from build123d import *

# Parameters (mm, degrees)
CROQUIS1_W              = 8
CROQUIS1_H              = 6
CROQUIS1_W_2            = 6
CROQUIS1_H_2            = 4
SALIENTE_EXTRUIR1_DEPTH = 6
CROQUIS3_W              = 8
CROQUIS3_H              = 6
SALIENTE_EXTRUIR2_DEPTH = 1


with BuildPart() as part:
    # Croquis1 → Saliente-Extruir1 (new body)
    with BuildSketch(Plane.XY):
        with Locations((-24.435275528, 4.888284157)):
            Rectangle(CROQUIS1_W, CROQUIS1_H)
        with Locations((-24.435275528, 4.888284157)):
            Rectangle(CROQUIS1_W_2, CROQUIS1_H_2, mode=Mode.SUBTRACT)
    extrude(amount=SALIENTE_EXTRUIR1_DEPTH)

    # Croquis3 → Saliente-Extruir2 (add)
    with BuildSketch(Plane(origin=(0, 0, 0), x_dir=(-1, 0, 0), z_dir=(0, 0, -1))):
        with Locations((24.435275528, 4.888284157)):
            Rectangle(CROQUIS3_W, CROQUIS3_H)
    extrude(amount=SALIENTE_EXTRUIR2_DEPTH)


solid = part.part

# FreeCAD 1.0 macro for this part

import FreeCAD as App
import Part
import Sketcher
Q = App.Units.Quantity


def add_polygon(sketch, points):
    """Adds a closed chain of lines whose ends are joined by coincident constraints."""
    first, n = sketch.GeometryCount, len(points)
    for a, b in zip(points, points[1:] + points[:1]):
        sketch.addGeometry(Part.LineSegment(App.Vector(*a, 0), App.Vector(*b, 0)), False)
    for i in range(n):
        sketch.addConstraint(Sketcher.Constraint("Coincident", first + i, 2, first + (i + 1) % n, 1))

doc = App.newDocument("Part")
params = doc.addObject("Spreadsheet::Sheet", "Params")
for row, (alias, value) in enumerate([
    ("sketch1_width", "8 mm"),
    ("sketch1_width2", "6 mm"),
    ("sketch1_height", "4 mm"),
    ("pad1_length", "6 mm"),
    ("sketch2_width", "8 mm"),
    ("sketch2_height", "6 mm"),
    ("pad2_length", "1 mm"),
], start=1):
    params.set(f"A{row}", alias)
    params.set(f"B{row}", "=" + value)
    params.setAlias(f"B{row}", alias)

body = doc.addObject("PartDesign::Body", "Body")

sketch1 = body.newObject("Sketcher::SketchObject", "Sketch")
sketch1.AttachmentSupport = (doc.getObject("XY_Plane"), [""])
sketch1.MapMode = "FlatFace"
add_polygon(sketch1, [(-28.4, 7.9), (-28.4, 1.9), (-20.4, 1.9), (-20.4, 7.9)])
add_polygon(sketch1, [(-21.4, 2.9), (-27.4, 2.9), (-27.4, 6.9), (-21.4, 6.9)])
sketch1.addConstraint([
    Sketcher.Constraint("Vertical", 0),
    Sketcher.Constraint("Horizontal", 1),
    Sketcher.Constraint("Vertical", 2),
    Sketcher.Constraint("Horizontal", 3),
    Sketcher.Constraint("Horizontal", 4),
    Sketcher.Constraint("Vertical", 5),
    Sketcher.Constraint("Horizontal", 6),
    Sketcher.Constraint("Vertical", 7),
    Sketcher.Constraint("Equal", 6, 0),
    Sketcher.Constraint("DistanceX", 1, 1, 1, 2, Q("8 mm")),
    Sketcher.Constraint("DistanceX", 4, 2, 4, 1, Q("6 mm")),
    Sketcher.Constraint("DistanceY", 5, 1, 5, 2, Q("4 mm")),
    Sketcher.Constraint("DistanceX", 0, 2, 4, 2, Q("1 mm")),
    Sketcher.Constraint("DistanceY", 0, 2, 4, 2, Q("1 mm")),
    Sketcher.Constraint("DistanceX", 0, 2, -1, 1, Q("28.435276 mm")),
    Sketcher.Constraint("DistanceY", -1, 1, 0, 2, Q("1.888284 mm")),
])
sketch1.setExpression("Constraints[17]", "Params.sketch1_width")
sketch1.setExpression("Constraints[18]", "Params.sketch1_width2")
sketch1.setExpression("Constraints[19]", "Params.sketch1_height")
pad1 = body.newObject("PartDesign::Pad", "Pad")
pad1.Profile = sketch1
pad1.setExpression("Length", "Params.pad1_length")

sketch2 = body.newObject("Sketcher::SketchObject", "Sketch001")
sketch2.AttachmentSupport = (doc.getObject("XY_Plane"), [""])
sketch2.MapMode = "FlatFace"
add_polygon(sketch2, [(-20, 8), (-20, 2), (-28, 2), (-28, 8)])
sketch2.addConstraint([
    Sketcher.Constraint("Vertical", 0),
    Sketcher.Constraint("Horizontal", 1),
    Sketcher.Constraint("Vertical", 2),
    Sketcher.Constraint("Horizontal", 3),
    Sketcher.Constraint("DistanceX", 1, 2, 1, 1, Q("8 mm")),
    Sketcher.Constraint("DistanceY", 0, 2, 0, 1, Q("6 mm")),
    Sketcher.Constraint("DistanceX", 0, 2, -1, 1, Q("20.435276 mm")),
    Sketcher.Constraint("DistanceY", -1, 1, 0, 2, Q("1.888284 mm")),
])
sketch2.setExpression("Constraints[8]", "Params.sketch2_width")
sketch2.setExpression("Constraints[9]", "Params.sketch2_height")
pad2 = body.newObject("PartDesign::Pad", "Pad001")
pad2.Profile = sketch2
pad2.setExpression("Length", "Params.pad2_length")
pad2.Reversed = True

doc.recompute()
